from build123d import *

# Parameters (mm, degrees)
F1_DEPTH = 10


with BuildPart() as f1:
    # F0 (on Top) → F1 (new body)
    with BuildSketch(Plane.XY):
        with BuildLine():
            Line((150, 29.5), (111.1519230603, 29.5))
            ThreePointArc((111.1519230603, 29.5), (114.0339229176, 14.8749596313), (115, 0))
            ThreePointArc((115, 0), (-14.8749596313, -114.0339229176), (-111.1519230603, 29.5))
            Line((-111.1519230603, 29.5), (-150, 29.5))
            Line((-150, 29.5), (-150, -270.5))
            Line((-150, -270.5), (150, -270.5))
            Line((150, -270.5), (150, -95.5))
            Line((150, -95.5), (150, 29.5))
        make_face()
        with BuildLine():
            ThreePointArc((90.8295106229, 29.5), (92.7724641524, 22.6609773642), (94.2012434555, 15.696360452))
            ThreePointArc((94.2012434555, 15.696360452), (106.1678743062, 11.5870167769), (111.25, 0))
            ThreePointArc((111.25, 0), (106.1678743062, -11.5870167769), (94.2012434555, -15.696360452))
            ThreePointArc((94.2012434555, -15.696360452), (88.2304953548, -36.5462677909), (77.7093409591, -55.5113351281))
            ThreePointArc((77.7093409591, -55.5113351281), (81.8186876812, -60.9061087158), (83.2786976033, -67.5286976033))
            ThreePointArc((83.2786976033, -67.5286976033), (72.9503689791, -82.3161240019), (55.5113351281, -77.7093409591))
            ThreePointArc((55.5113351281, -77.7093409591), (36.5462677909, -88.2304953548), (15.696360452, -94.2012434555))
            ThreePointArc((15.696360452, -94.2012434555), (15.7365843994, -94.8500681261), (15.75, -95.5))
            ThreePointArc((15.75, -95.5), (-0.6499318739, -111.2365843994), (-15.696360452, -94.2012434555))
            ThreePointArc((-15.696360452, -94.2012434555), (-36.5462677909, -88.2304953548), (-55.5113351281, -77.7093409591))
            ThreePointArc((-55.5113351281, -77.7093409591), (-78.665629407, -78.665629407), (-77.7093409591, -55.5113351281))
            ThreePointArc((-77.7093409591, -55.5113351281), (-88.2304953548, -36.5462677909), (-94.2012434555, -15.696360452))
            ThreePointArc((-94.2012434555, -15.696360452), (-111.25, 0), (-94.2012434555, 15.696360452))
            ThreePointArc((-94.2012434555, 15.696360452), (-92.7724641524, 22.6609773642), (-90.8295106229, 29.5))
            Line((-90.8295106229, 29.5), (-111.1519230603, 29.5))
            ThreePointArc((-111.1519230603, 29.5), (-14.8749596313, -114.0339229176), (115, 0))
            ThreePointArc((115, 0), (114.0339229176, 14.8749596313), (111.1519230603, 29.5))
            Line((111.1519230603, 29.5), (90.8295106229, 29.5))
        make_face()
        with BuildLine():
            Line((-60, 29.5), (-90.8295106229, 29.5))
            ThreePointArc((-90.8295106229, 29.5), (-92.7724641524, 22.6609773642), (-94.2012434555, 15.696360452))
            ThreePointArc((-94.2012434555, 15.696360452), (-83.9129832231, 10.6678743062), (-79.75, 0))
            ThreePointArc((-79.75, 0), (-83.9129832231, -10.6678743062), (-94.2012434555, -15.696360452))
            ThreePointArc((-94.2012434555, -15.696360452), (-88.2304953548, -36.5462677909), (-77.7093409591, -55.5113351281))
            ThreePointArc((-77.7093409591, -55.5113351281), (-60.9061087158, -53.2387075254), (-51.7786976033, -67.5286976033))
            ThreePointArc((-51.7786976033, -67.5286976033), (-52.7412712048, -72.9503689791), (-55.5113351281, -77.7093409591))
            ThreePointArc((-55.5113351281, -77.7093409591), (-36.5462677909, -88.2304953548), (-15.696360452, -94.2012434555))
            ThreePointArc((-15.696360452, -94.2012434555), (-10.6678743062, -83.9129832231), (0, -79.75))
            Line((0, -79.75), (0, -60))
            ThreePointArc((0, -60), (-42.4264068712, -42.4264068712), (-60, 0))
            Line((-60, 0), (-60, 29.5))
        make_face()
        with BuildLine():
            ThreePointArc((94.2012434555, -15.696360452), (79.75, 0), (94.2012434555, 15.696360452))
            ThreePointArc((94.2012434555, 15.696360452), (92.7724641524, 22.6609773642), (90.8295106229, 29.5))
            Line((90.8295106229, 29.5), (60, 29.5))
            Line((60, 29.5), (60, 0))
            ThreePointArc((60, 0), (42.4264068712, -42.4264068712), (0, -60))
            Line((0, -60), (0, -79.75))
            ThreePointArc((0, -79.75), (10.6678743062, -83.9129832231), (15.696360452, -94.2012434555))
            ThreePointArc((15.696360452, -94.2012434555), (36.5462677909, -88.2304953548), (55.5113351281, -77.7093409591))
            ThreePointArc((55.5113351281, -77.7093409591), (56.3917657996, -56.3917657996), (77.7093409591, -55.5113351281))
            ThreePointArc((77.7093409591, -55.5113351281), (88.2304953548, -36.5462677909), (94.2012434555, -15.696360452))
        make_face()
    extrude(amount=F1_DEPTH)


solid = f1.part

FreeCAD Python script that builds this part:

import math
import FreeCAD as App
import Part
import Sketcher
from FreeCAD import Vector

doc = App.newDocument("Part")
body = doc.addObject("PartDesign::Body", "Body")

# Sketch on XY plane
sketch1 = body.newObject("Sketcher::SketchObject", "Sketch")
sketch1.AttachmentSupport = (doc.getObject("XY_Plane"), [""])
sketch1.MapMode = "FlatFace"
sketch1.addGeometry(Part.LineSegment(Vector(150, 29.5, 0), Vector(60, 29.5, 0)), False)
sketch1.addGeometry(Part.LineSegment(Vector(60, 29.5, 0), Vector(60, 0, 0)), False)
sketch1.addGeometry(Part.ArcOfCircle(Part.Circle(Vector(0, 0, 0), Vector(0, 0, 1), 60), math.radians(180), math.radians(360)), False)
sketch1.addGeometry(Part.LineSegment(Vector(-60, 0, 0), Vector(-60, 29.5, 0)), False)
sketch1.addGeometry(Part.LineSegment(Vector(-60, 29.5, 0), Vector(-150, 29.5, 0)), False)
sketch1.addGeometry(Part.LineSegment(Vector(-150, 29.5, 0), Vector(-150, -270.5, 0)), False)
sketch1.addGeometry(Part.LineSegment(Vector(-150, -270.5, 0), Vector(150, -270.5, 0)), False)
sketch1.addGeometry(Part.LineSegment(Vector(150, -270.5, 0), Vector(150, 29.5, 0)), False)
sketch1.addGeometry(Part.Circle(Vector(95.5, 0, 0), Vector(0, 0, 1), 15.75), False)
sketch1.addGeometry(Part.ArcOfCircle(Part.Circle(Vector(67.528698, -67.528698, 0), Vector(0, 0, 1), 15.75), math.radians(0), math.radians(49.730023)), False)
sketch1.addGeometry(Part.ArcOfCircle(Part.Circle(Vector(67.528698, -67.528698, 0), Vector(0, 0, 1), 15.75), math.radians(-139.730023), math.radians(0)), False)
sketch1.addGeometry(Part.ArcOfCircle(Part.Circle(Vector(67.528698, -67.528698, 0), Vector(0, 0, 1), 15.75), math.radians(49.730023), math.radians(220.269977)), False)
sketch1.addGeometry(Part.ArcOfCircle(Part.Circle(Vector(0, -95.5, 0), Vector(0, 0, 1), 15.75), math.radians(0), math.radians(4.730023)), False)
sketch1.addGeometry(Part.ArcOfCircle(Part.Circle(Vector(0, -95.5, 0), Vector(0, 0, 1), 15.75), math.radians(175.269977), math.radians(360)), False)
sketch1.addGeometry(Part.ArcOfCircle(Part.Circle(Vector(0, -95.5, 0), Vector(0, 0, 1), 15.75), math.radians(90), math.radians(175.269977)), False)
sketch1.addGeometry(Part.ArcOfCircle(Part.Circle(Vector(0, -95.5, 0), Vector(0, 0, 1), 15.75), math.radians(4.730023), math.radians(90)), False)
sketch1.addGeometry(Part.ArcOfCircle(Part.Circle(Vector(-67.528698, -67.528698, 0), Vector(0, 0, 1), 15.75), math.radians(130.269977), math.radians(319.730023)), False)
sketch1.addGeometry(Part.ArcOfCircle(Part.Circle(Vector(-67.528698, -67.528698, 0), Vector(0, 0, 1), 15.75), math.radians(0), math.radians(130.269977)), False)
sketch1.addGeometry(Part.ArcOfCircle(Part.Circle(Vector(-67.528698, -67.528698, 0), Vector(0, 0, 1), 15.75), math.radians(-40.269977), math.radians(0)), False)
sketch1.addGeometry(Part.Circle(Vector(-95.5, 0, 0), Vector(0, 0, 1), 15.75), False)
sketch1.addConstraint(Sketcher.Constraint("Coincident", 0, 2, 1, 1))
sketch1.addConstraint(Sketcher.Constraint("Tangent", 1, 2, 2, 2))
sketch1.addConstraint(Sketcher.Constraint("Tangent", 2, 1, 3, 1))
sketch1.addConstraint(Sketcher.Constraint("Coincident", 3, 2, 4, 1))
sketch1.addConstraint(Sketcher.Constraint("Coincident", 4, 2, 5, 1))
sketch1.addConstraint(Sketcher.Constraint("Coincident", 5, 2, 6, 1))
sketch1.addConstraint(Sketcher.Constraint("Coincident", 6, 2, 7, 1))
sketch1.addConstraint(Sketcher.Constraint("Coincident", 7, 2, 0, 1))
sketch1.addConstraint(Sketcher.Constraint("Tangent", 9, 1, 10, 2))
sketch1.addConstraint(Sketcher.Constraint("Tangent", 10, 1, 11, 2))
sketch1.addConstraint(Sketcher.Constraint("Tangent", 11, 1, 9, 2))
sketch1.addConstraint(Sketcher.Constraint("Tangent", 12, 1, 13, 2))
sketch1.addConstraint(Sketcher.Constraint("Tangent", 13, 1, 14, 2))
sketch1.addConstraint(Sketcher.Constraint("Tangent", 14, 1, 15, 2))
sketch1.addConstraint(Sketcher.Constraint("Tangent", 15, 1, 12, 2))
sketch1.addConstraint(Sketcher.Constraint("Tangent", 16, 1, 17, 2))
sketch1.addConstraint(Sketcher.Constraint("Tangent", 17, 1, 18, 2))
sketch1.addConstraint(Sketcher.Constraint("Tangent", 18, 1, 16, 2))
sketch1.addConstraint(Sketcher.Constraint("Horizontal", 0))
sketch1.addConstraint(Sketcher.Constraint("Vertical", 1))
sketch1.addConstraint(Sketcher.Constraint("Vertical", 3))
sketch1.addConstraint(Sketcher.Constraint("Horizontal", 4))
sketch1.addConstraint(Sketcher.Constraint("Vertical", 5))
sketch1.addConstraint(Sketcher.Constraint("Horizontal", 6))
sketch1.addConstraint(Sketcher.Constraint("Vertical", 7))
sketch1.addConstraint(Sketcher.Constraint("Coincident", 2, 3, -1, 1))
sketch1.addConstraint(Sketcher.Constraint("Equal", 8, 9))
sketch1.addConstraint(Sketcher.Constraint("Equal", 11, 12))
sketch1.addConstraint(Sketcher.Constraint("Equal", 12, 13))
sketch1.addConstraint(Sketcher.Constraint("Equal", 15, 16))
sketch1.addConstraint(Sketcher.Constraint("Equal", 18, 19))
sketch1.addConstraint(Sketcher.Constraint("Symmetric", 8, 3, 19, 3, -1, 1))
sketch1.addConstraint(Sketcher.Constraint("Symmetric", 9, 3, 16, 3, -2))
sketch1.addConstraint(Sketcher.Constraint("Symmetric", 4, 2, 7, 2, -2))
sketch1.addConstraint(Sketcher.Constraint("Symmetric", 13, 1, 15, 1, -2))
sketch1.addConstraint(Sketcher.Constraint("PointOnObject", 8, 3, -1))
sketch1.addConstraint(Sketcher.Constraint("PointOnObject", 14, 1, -2))
sketch1.addConstraint(Sketcher.Constraint("Horizontal", 18, 3, 9, 1))
sketch1.addConstraint(Sketcher.Constraint("Horizontal", 15, 3, 12, 1))
sketch1.addConstraint(Sketcher.Constraint("Horizontal", 11, 1, 16, 1))
sketch1.addConstraint(Sketcher.Constraint("Horizontal", 9, 1, 17, 1))
sketch1.addConstraint(Sketcher.Constraint("Horizontal", 10, 1, 18, 1))
sketch1.addConstraint(Sketcher.Constraint("Equal", 6, 5))
sketch1.addConstraint(Sketcher.Constraint("Radius", 2, 60.0))
sketch1.addConstraint(Sketcher.Constraint("Diameter", 8, 31.5))
sketch1.addConstraint(Sketcher.Constraint("DistanceX", 0, 2, 0, 1, 90.0))
sketch1.addConstraint(Sketcher.Constraint("DistanceY", 1, 2, 1, 1, 29.5))
sketch1.addConstraint(Sketcher.Constraint("DistanceY", 5, 2, 12, 3, 175.0))
sketch1.addConstraint(Sketcher.Constraint("DistanceX", -1, 1, 8, 3, 95.5))
sketch1.addConstraint(Sketcher.Constraint("DistanceY", 10, 1, -1, 1, 77.709341))
sketch1.addConstraint(Sketcher.Constraint("DistanceX", -1, 1, 11, 1, 77.709341))
sketch1.addConstraint(Sketcher.Constraint("DistanceX", 13, 1, -1, 1, 15.69636))
sketch1.addConstraint(Sketcher.Constraint("DistanceX", -1, 1, 9, 3, 67.528698))
sketch1.addConstraint(Sketcher.Constraint("DistanceY", 9, 3, -1, 1, 67.528698))
pad1 = body.newObject("PartDesign::Pad", "Pad")
pad1.Profile = sketch1
pad1.Length = 10

doc.recompute()
